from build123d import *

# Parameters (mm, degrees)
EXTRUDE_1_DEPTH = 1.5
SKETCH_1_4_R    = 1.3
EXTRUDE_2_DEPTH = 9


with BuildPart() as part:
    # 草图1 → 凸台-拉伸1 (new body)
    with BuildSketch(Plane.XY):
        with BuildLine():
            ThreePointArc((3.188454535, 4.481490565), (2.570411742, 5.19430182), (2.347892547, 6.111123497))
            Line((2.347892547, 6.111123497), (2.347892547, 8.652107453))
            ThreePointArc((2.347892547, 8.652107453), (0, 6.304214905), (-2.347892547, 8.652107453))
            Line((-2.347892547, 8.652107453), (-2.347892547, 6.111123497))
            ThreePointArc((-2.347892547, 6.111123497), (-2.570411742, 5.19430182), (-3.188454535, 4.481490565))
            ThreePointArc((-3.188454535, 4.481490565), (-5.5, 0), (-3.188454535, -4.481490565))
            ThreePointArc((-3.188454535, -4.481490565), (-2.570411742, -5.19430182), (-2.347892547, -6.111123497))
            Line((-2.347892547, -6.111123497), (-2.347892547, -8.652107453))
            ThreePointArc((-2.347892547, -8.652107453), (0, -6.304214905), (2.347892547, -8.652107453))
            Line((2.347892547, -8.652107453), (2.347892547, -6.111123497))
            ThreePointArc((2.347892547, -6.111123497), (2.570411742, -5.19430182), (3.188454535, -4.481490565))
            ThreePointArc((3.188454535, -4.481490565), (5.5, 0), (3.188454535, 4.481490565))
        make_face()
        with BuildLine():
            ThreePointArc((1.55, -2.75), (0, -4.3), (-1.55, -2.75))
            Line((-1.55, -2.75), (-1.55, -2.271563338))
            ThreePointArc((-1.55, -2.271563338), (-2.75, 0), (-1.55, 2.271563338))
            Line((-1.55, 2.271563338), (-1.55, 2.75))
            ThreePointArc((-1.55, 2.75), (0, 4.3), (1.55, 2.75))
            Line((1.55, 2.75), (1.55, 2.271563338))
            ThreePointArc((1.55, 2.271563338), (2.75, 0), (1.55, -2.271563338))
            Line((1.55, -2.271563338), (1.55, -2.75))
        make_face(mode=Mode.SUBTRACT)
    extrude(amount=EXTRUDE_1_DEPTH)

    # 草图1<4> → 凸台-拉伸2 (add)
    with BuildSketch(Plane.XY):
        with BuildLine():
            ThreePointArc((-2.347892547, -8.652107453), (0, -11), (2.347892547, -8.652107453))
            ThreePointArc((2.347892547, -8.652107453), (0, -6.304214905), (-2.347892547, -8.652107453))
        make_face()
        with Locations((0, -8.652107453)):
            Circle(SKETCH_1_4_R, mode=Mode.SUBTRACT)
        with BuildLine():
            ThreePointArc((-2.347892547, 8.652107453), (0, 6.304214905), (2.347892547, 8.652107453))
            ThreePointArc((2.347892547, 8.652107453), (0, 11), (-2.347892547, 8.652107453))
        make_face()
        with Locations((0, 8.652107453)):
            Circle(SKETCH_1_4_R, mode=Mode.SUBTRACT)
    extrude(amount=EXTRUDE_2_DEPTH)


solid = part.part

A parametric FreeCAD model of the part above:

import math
import FreeCAD as App
import Part
import Sketcher

doc = App.newDocument("Part")
params = doc.addObject("Spreadsheet::Sheet", "Params")
for row, (alias, value) in enumerate([
    ("sketch1_radius", "2 mm"),
    ("sketch1_radius2", "5.5 mm"),
    ("sketch1_radius3", "1.55 mm"),
    ("sketch1_radius4", "2.75 mm"),
    ("pad1_length", "1.5 mm"),
    ("sketch2_diameter", "2.6 mm"),
    ("pad2_length", "9 mm"),
], start=1):
    params.set(f"A{row}", alias)
    params.set(f"B{row}", "=" + value)
    params.setAlias(f"B{row}", alias)

body = doc.addObject("PartDesign::Body", "Body")

# Sketch on XY plane
sketch1 = body.newObject("Sketcher::SketchObject", "Sketch")
sketch1.AttachmentSupport = (doc.getObject("XY_Plane"), [""])
sketch1.MapMode = "FlatFace"
sketch1.addGeometry(Part.ArcOfCircle(Part.Circle(App.Vector(4.35, 6.11, 0), App.Vector(0, 0, 1), 2), math.radians(180), math.radians(235)), False)
sketch1.addGeometry(Part.LineSegment(App.Vector(2.35, 6.11, 0), App.Vector(2.35, 8.65, 0)), False)
sketch1.addGeometry(Part.ArcOfCircle(Part.Circle(App.Vector(0, 8.65, 0), App.Vector(0, 0, 1), 2.35), math.radians(180), math.radians(360)), False)
sketch1.addGeometry(Part.LineSegment(App.Vector(-2.35, 8.65, 0), App.Vector(-2.35, 6.11, 0)), False)
sketch1.addGeometry(Part.ArcOfCircle(Part.Circle(App.Vector(-4.35, 6.11, 0), App.Vector(0, 0, 1), 2), math.radians(-55), math.radians(0)), False)
sketch1.addGeometry(Part.ArcOfCircle(Part.Circle(App.Vector(0, 0, 0), App.Vector(0, 0, 1), 5.5), math.radians(125), math.radians(235)), False)
sketch1.addGeometry(Part.ArcOfCircle(Part.Circle(App.Vector(-4.35, -6.11, 0), App.Vector(0, 0, 1), 2), math.radians(0), math.radians(55)), False)
sketch1.addGeometry(Part.LineSegment(App.Vector(-2.35, -6.11, 0), App.Vector(-2.35, -8.65, 0)), False)
sketch1.addGeometry(Part.ArcOfCircle(Part.Circle(App.Vector(0, -8.65, 0), App.Vector(0, 0, 1), 2.35), math.radians(0), math.radians(180)), False)
sketch1.addGeometry(Part.LineSegment(App.Vector(2.35, -8.65, 0), App.Vector(2.35, -6.11, 0)), False)
sketch1.addGeometry(Part.ArcOfCircle(Part.Circle(App.Vector(4.35, -6.11, 0), App.Vector(0, 0, 1), 2), math.radians(125), math.radians(180)), False)
sketch1.addGeometry(Part.ArcOfCircle(Part.Circle(App.Vector(0, 0, 0), App.Vector(0, 0, 1), 5.5), math.radians(-55), math.radians(55)), False)
sketch1.addGeometry(Part.LineSegment(App.Vector(1.55, -2.27, 0), App.Vector(1.55, -2.75, 0)), False)
sketch1.addGeometry(Part.ArcOfCircle(Part.Circle(App.Vector(0, -2.75, 0), App.Vector(0, 0, 1), 1.55), math.radians(180), math.radians(360)), False)
sketch1.addGeometry(Part.LineSegment(App.Vector(-1.55, -2.75, 0), App.Vector(-1.55, -2.27, 0)), False)
sketch1.addGeometry(Part.ArcOfCircle(Part.Circle(App.Vector(0, 0, 0), App.Vector(0, 0, 1), 2.75), math.radians(124), math.radians(236)), False)
sketch1.addGeometry(Part.LineSegment(App.Vector(-1.55, 2.27, 0), App.Vector(-1.55, 2.75, 0)), False)
sketch1.addGeometry(Part.ArcOfCircle(Part.Circle(App.Vector(0, 2.75, 0), App.Vector(0, 0, 1), 1.55), math.radians(0), math.radians(180)), False)
sketch1.addGeometry(Part.LineSegment(App.Vector(1.55, 2.75, 0), App.Vector(1.55, 2.27, 0)), False)
sketch1.addGeometry(Part.ArcOfCircle(Part.Circle(App.Vector(0, 0, 0), App.Vector(0, 0, 1), 2.75), math.radians(-56), math.radians(56)), False)
sketch1.addConstraint(Sketcher.Constraint("Tangent", 0, 1, 1, 1))
sketch1.addConstraint(Sketcher.Constraint("Tangent", 1, 2, 2, 2))
sketch1.addConstraint(Sketcher.Constraint("Tangent", 2, 1, 3, 1))
sketch1.addConstraint(Sketcher.Constraint("Tangent", 3, 2, 4, 2))
sketch1.addConstraint(Sketcher.Constraint("Tangent", 4, 1, 5, 1))
sketch1.addConstraint(Sketcher.Constraint("Tangent", 5, 2, 6, 2))
sketch1.addConstraint(Sketcher.Constraint("Tangent", 6, 1, 7, 1))
sketch1.addConstraint(Sketcher.Constraint("Tangent", 7, 2, 8, 2))
sketch1.addConstraint(Sketcher.Constraint("Tangent", 8, 1, 9, 1))
sketch1.addConstraint(Sketcher.Constraint("Tangent", 9, 2, 10, 2))
sketch1.addConstraint(Sketcher.Constraint("Tangent", 10, 1, 11, 1))
sketch1.addConstraint(Sketcher.Constraint("Tangent", 11, 2, 0, 2))
sketch1.addConstraint(Sketcher.Constraint("Tangent", 12, 2, 13, 2))
sketch1.addConstraint(Sketcher.Constraint("Tangent", 13, 1, 14, 1))
sketch1.addConstraint(Sketcher.Constraint("Coincident", 14, 2, 15, 2))
sketch1.addConstraint(Sketcher.Constraint("Coincident", 15, 1, 16, 1))
sketch1.addConstraint(Sketcher.Constraint("Tangent", 16, 2, 17, 2))
sketch1.addConstraint(Sketcher.Constraint("Tangent", 17, 1, 18, 1))
sketch1.addConstraint(Sketcher.Constraint("Coincident", 18, 2, 19, 2))
sketch1.addConstraint(Sketcher.Constraint("Coincident", 19, 1, 12, 1))
sketch1.addConstraint(Sketcher.Constraint("Vertical", 1))
sketch1.addConstraint(Sketcher.Constraint("Vertical", 3))
sketch1.addConstraint(Sketcher.Constraint("Vertical", 7))
sketch1.addConstraint(Sketcher.Constraint("Vertical", 9))
sketch1.addConstraint(Sketcher.Constraint("Vertical", 12))
sketch1.addConstraint(Sketcher.Constraint("Vertical", 14))
sketch1.addConstraint(Sketcher.Constraint("Vertical", 16))
sketch1.addConstraint(Sketcher.Constraint("Vertical", 18))
sketch1.addConstraint(Sketcher.Constraint("Coincident", 5, 3, -1, 1))
sketch1.addConstraint(Sketcher.Constraint("Coincident", 11, 3, -1, 1))
sketch1.addConstraint(Sketcher.Constraint("Coincident", 15, 3, -1, 1))
sketch1.addConstraint(Sketcher.Constraint("Coincident", 19, 3, -1, 1))
sketch1.addConstraint(Sketcher.Constraint("Equal", 0, 4))
sketch1.addConstraint(Sketcher.Constraint("Equal", 4, 6))
sketch1.addConstraint(Sketcher.Constraint("Equal", 2, 8))
sketch1.addConstraint(Sketcher.Constraint("Equal", 6, 10))
sketch1.addConstraint(Sketcher.Constraint("Equal", 5, 11))
sketch1.addConstraint(Sketcher.Constraint("Equal", 13, 17))
sketch1.addConstraint(Sketcher.Constraint("Equal", 15, 19))
sketch1.addConstraint(Sketcher.Constraint("Symmetric", 2, 3, 8, 3, -1, 1))
sketch1.addConstraint(Sketcher.Constraint("Symmetric", 13, 3, 17, 3, -1, 1))
sketch1.addConstraint(Sketcher.Constraint("PointOnObject", 2, 3, -2))
sketch1.addConstraint(Sketcher.Constraint("PointOnObject", 13, 3, -2))
sketch1.addConstraint(Sketcher.Constraint("Radius", 0, 2.0))
sketch1.addConstraint(Sketcher.Constraint("Radius", 5, 5.5))
sketch1.addConstraint(Sketcher.Constraint("Radius", 13, 1.55))
sketch1.addConstraint(Sketcher.Constraint("Radius", 15, 2.75))
sketch1.addConstraint(Sketcher.Constraint("DistanceY", 13, 3, -1, 1, 2.75))
sketch1.addConstraint(Sketcher.Constraint("Radius", 2, 2.347893))
sketch1.addConstraint(Sketcher.Constraint("DistanceY", 1, 1, 1, 2, 2.540984))
sketch1.setExpression("Constraints[43]", "Params.sketch1_radius")
sketch1.setExpression("Constraints[44]", "Params.sketch1_radius2")
sketch1.setExpression("Constraints[45]", "Params.sketch1_radius3")
sketch1.setExpression("Constraints[46]", "Params.sketch1_radius4")
pad1 = body.newObject("PartDesign::Pad", "Pad")
pad1.Profile = sketch1
pad1.setExpression("Length", "Params.pad1_length")

# Sketch on XY plane
sketch2 = body.newObject("Sketcher::SketchObject", "Sketch001")
sketch2.AttachmentSupport = (doc.getObject("XY_Plane"), [""])
sketch2.MapMode = "FlatFace"
sketch2.addGeometry(Part.ArcOfCircle(Part.Circle(App.Vector(0, -8.7, 0), App.Vector(0, 0, 1), 2.3), math.radians(180), math.radians(360)), False)
sketch2.addGeometry(Part.ArcOfCircle(Part.Circle(App.Vector(0, -8.7, 0), App.Vector(0, 0, 1), 2.3), math.radians(0), math.radians(180)), False)
sketch2.addGeometry(Part.Circle(App.Vector(0, -8.7, 0), App.Vector(0, 0, 1), 1.3), False)
sketch2.addGeometry(Part.ArcOfCircle(Part.Circle(App.Vector(0, 8.7, 0), App.Vector(0, 0, 1), 2.3), math.radians(180), math.radians(360)), False)
sketch2.addGeometry(Part.ArcOfCircle(Part.Circle(App.Vector(0, 8.7, 0), App.Vector(0, 0, 1), 2.3), math.radians(0), math.radians(180)), False)
sketch2.addGeometry(Part.Circle(App.Vector(0, 8.7, 0), App.Vector(0, 0, 1), 1.3), False)
sketch2.addConstraint(Sketcher.Constraint("Tangent", 0, 1, 1, 2))
sketch2.addConstraint(Sketcher.Constraint("Coincident", 1, 1, 0, 2))
sketch2.addConstraint(Sketcher.Constraint("Tangent", 3, 1, 4, 2))
sketch2.addConstraint(Sketcher.Constraint("Coincident", 4, 1, 3, 2))
sketch2.addConstraint(Sketcher.Constraint("Coincident", 2, 3, 0, 3))
sketch2.addConstraint(Sketcher.Constraint("Coincident", 5, 3, 3, 3))
sketch2.addConstraint(Sketcher.Constraint("Equal", 1, 3))
sketch2.addConstraint(Sketcher.Constraint("Equal", 2, 5))
sketch2.addConstraint(Sketcher.Constraint("Symmetric", 0, 3, 3, 3, -1, 1))
sketch2.addConstraint(Sketcher.Constraint("Symmetric", 0, 1, 1, 1, -2))
sketch2.addConstraint(Sketcher.Constraint("Horizontal", 2, 3, 0, 1))
sketch2.addConstraint(Sketcher.Constraint("Horizontal", 5, 3, 3, 1))
sketch2.addConstraint(Sketcher.Constraint("Horizontal", 3, 1, 4, 1))
sketch2.addConstraint(Sketcher.Constraint("Diameter", 2, 2.6))
sketch2.addConstraint(Sketcher.Constraint("Radius", 0, 2.347893))
sketch2.addConstraint(Sketcher.Constraint("DistanceY", 0, 3, -1, 1, 8.652107))
sketch2.setExpression("Constraints[13]", "Params.sketch2_diameter")
pad2 = body.newObject("PartDesign::Pad", "Pad001")
pad2.Profile = sketch2
pad2.setExpression("Length", "Params.pad2_length")

doc.recompute()
